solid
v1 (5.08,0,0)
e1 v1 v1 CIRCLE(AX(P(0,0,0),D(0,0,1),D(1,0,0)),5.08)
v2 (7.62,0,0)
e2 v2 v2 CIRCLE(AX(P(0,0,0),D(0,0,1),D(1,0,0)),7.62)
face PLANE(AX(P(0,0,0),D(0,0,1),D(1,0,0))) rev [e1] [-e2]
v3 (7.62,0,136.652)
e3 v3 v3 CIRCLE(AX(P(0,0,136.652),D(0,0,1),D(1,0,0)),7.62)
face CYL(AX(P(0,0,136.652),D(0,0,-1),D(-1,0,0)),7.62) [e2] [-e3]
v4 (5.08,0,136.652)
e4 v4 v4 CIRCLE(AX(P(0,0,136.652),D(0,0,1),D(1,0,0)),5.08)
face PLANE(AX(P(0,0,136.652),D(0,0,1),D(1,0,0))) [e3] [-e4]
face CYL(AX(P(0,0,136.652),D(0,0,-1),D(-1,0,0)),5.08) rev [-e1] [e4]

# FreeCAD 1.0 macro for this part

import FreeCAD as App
import Part
import Sketcher

V = App.Vector
Q = App.Units.Quantity

doc = App.newDocument("Part")
params = doc.addObject("Spreadsheet::Sheet", "Params")
for row, (alias, value) in enumerate([
    ("sketch1_diameter", "0.6 in"),
    ("sketch1_diameter2", "0.4 in"),
    ("pad1_length", "5.38 in"),
], start=1):
    params.set(f"A{row}", alias)
    params.set(f"B{row}", "=" + value)
    params.setAlias(f"B{row}", alias)

body = doc.addObject("PartDesign::Body", "Body")

sketch1 = doc.addObject("Sketcher::SketchObject", "Sketch")
body.addObject(sketch1)
sketch1.AttachmentSupport = (doc.XY_Plane, [""])
sketch1.MapMode = "FlatFace"
sketch1.addGeometry([
    Part.Circle(V(0, 0, 0), V(0, 0, 1), 7.62),
    Part.Circle(V(0, 0, 0), V(0, 0, 1), 5.08),
], False)
sketch1.addConstraint([
    Sketcher.Constraint("Coincident", 0, 3, -1, 1),
    Sketcher.Constraint("Coincident", 1, 3, -1, 1),
    Sketcher.Constraint("Diameter", 0, Q("0.6 in")),
    Sketcher.Constraint("Diameter", 1, Q("0.4 in")),
])
sketch1.setExpression("Constraints[2]", "Params.sketch1_diameter")
sketch1.setExpression("Constraints[3]", "Params.sketch1_diameter2")
pad1 = doc.addObject("PartDesign::Pad", "Pad")
body.addObject(pad1)
pad1.Profile = sketch1
pad1.setExpression("Length", "Params.pad1_length")

doc.recompute()
